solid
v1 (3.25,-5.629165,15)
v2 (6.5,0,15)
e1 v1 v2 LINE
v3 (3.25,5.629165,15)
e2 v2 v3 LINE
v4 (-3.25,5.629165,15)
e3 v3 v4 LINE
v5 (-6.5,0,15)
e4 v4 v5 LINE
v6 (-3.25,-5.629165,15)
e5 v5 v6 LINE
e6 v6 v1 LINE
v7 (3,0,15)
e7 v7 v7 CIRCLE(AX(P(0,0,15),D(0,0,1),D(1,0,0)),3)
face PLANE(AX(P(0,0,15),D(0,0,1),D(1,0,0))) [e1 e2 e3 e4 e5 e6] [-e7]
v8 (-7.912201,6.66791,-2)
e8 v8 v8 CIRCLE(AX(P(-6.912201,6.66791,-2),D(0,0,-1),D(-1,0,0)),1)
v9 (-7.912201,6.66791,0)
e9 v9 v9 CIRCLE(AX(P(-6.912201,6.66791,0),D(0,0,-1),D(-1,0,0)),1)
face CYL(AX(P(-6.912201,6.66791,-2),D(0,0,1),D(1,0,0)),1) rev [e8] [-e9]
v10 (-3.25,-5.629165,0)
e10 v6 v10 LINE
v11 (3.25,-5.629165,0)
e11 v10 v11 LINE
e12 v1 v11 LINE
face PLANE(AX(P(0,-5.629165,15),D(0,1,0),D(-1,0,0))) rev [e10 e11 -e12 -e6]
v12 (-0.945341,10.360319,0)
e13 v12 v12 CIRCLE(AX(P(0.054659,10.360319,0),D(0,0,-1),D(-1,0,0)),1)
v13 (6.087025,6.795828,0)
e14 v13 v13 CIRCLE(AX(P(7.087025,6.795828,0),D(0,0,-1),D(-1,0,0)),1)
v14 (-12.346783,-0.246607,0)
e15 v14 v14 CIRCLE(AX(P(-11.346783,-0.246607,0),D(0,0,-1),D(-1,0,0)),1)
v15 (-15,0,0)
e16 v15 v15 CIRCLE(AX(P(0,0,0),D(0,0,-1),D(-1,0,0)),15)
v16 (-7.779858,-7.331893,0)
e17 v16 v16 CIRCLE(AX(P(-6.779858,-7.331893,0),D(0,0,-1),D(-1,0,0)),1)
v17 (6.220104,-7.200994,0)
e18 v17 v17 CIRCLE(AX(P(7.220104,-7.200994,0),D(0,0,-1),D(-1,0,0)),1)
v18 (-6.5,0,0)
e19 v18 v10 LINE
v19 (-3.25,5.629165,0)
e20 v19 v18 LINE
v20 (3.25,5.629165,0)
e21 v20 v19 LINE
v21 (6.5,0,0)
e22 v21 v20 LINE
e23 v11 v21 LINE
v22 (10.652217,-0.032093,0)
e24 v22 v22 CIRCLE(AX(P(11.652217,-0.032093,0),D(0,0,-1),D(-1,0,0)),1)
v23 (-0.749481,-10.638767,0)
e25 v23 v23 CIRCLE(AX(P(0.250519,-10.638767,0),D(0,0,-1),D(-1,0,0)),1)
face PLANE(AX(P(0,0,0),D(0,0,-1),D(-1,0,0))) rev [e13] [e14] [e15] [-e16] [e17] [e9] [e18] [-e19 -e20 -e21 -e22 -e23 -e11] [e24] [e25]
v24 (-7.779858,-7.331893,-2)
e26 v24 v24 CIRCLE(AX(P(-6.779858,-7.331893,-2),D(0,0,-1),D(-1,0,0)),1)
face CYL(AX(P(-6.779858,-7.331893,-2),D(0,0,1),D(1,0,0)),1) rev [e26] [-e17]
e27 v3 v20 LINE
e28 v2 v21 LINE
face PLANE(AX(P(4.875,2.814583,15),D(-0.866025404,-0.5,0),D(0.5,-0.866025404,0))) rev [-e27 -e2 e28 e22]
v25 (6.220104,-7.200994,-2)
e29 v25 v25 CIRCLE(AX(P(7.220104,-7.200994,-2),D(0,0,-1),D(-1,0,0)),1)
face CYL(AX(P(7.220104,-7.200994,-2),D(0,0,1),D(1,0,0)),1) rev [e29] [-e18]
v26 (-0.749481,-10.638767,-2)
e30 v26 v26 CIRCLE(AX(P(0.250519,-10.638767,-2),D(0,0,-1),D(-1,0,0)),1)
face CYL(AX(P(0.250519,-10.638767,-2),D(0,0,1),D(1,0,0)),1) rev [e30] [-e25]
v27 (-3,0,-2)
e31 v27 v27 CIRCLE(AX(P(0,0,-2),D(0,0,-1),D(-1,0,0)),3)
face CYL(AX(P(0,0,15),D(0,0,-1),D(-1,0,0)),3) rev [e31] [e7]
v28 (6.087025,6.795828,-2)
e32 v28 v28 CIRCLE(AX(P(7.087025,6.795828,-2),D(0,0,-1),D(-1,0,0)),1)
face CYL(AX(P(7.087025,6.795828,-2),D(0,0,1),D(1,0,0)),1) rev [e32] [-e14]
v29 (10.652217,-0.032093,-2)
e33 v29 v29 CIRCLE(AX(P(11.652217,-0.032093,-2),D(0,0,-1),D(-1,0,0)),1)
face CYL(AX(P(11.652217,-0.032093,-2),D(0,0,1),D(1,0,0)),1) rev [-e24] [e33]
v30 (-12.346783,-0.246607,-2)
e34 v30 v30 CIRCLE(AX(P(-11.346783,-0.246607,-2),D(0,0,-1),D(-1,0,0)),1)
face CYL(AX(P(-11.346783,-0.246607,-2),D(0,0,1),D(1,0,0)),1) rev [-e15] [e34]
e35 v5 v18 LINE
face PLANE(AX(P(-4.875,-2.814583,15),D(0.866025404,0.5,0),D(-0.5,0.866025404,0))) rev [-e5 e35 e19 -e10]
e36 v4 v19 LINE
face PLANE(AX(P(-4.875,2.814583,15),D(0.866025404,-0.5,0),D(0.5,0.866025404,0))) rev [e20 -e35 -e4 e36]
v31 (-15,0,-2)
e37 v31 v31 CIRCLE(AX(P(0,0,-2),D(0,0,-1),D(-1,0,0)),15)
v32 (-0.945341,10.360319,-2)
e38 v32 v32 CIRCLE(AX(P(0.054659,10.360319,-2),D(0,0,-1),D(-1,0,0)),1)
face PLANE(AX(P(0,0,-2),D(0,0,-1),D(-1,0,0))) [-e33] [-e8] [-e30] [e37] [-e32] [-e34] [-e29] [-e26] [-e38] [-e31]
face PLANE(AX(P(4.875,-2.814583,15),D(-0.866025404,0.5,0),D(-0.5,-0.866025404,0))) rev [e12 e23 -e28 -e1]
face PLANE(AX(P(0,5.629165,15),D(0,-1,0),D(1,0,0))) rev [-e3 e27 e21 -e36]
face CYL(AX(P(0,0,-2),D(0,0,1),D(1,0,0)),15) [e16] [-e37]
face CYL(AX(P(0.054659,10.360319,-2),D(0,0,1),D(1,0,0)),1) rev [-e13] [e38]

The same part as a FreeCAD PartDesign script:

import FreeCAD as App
import Part
import Sketcher

V = App.Vector
Q = App.Units.Quantity

doc = App.newDocument("Part")
body = doc.addObject("PartDesign::Body", "Body")

sketch1 = body.newObject("Sketcher::SketchObject", "Sketch")
sketch1.AttachmentSupport = (doc.getObject("XY_Plane"), [""])
sketch1.MapMode = "FlatFace"
sketch1.addGeometry([
    Part.LineSegment(V(-3.2, -5.6, 0), V(3.2, -5.6, 0)),
    Part.LineSegment(V(3.2, -5.6, 0), V(6.5, 0, 0)),
    Part.LineSegment(V(6.5, 0, 0), V(3.2, 5.6, 0)),
    Part.LineSegment(V(3.2, 5.6, 0), V(-3.2, 5.6, 0)),
    Part.LineSegment(V(-3.2, 5.6, 0), V(-6.5, 0, 0)),
    Part.LineSegment(V(-6.5, 0, 0), V(-3.2, -5.6, 0)),
    Part.Circle(V(0, 0, 0), V(0, 0, 1), 3),
], False)
sketch1.addConstraint([
    Sketcher.Constraint("Coincident", 0, 2, 1, 1),
    Sketcher.Constraint("Coincident", 1, 2, 2, 1),
    Sketcher.Constraint("Coincident", 2, 2, 3, 1),
    Sketcher.Constraint("Coincident", 3, 2, 4, 1),
    Sketcher.Constraint("Coincident", 4, 2, 5, 1),
    Sketcher.Constraint("Coincident", 5, 2, 0, 1),
    Sketcher.Constraint("Horizontal", 0),
    Sketcher.Constraint("Horizontal", 3),
    Sketcher.Constraint("Coincident", 6, 3, -1, 1),
    Sketcher.Constraint("Symmetric", 0, 2, 3, 2, -1, 1),
    Sketcher.Constraint("Symmetric", 1, 2, 4, 2, -1, 1),
    Sketcher.Constraint("PointOnObject", 1, 2, -1),
    Sketcher.Constraint("Parallel", 2, 5),
    Sketcher.Constraint("Vertical", 0, 2, 2, 2),
    Sketcher.Constraint("Diameter", 6, 6.0),
    Sketcher.Constraint("Angle", 1, Q("60 deg")),
    Sketcher.Constraint("DistanceX", 0, 1, 0, 2, 6.5),
    Sketcher.Constraint("DistanceX", 4, 2, 1, 2, 13.0),
])
pad1 = body.newObject("PartDesign::Pad", "Pad")
pad1.Profile = sketch1
pad1.Length = 15

sketch2 = body.newObject("Sketcher::SketchObject", "Sketch001")
sketch2.AttachmentSupport = (doc.getObject("XY_Plane"), [""])
sketch2.MapMode = "FlatFace"
sketch2.AttachmentOffset = App.Placement(V(0, 0, -2), App.Rotation())
sketch2.addGeometry([
    Part.Circle(V(0, 0, 0), V(0, 0, 1), 15),
    Part.Circle(V(7.2, -7.2, 0), V(0, 0, 1), 1),
    Part.Circle(V(0.3, -10.6, 0), V(0, 0, 1), 1),
    Part.Circle(V(-6.8, -7.3, 0), V(0, 0, 1), 1),
    Part.Circle(V(-11.3, -0.2, 0), V(0, 0, 1), 1),
    Part.Circle(V(11.7, 0, 0), V(0, 0, 1), 1),
    Part.Circle(V(7.1, 6.8, 0), V(0, 0, 1), 1),
    Part.Circle(V(0, 0, 0), V(0, 0, 1), 3),
    Part.Circle(V(0.1, 10.4, 0), V(0, 0, 1), 1),
    Part.Circle(V(-6.9, 6.7, 0), V(0, 0, 1), 1),
], False)
sketch2.addConstraint([
    Sketcher.Constraint("Coincident", 0, 3, -1, 1),
    Sketcher.Constraint("Coincident", 7, 3, -1, 1),
    Sketcher.Constraint("Equal", 1, 2),
    Sketcher.Constraint("Equal", 2, 3),
    Sketcher.Constraint("Equal", 3, 4),
    Sketcher.Constraint("Equal", 4, 5),
    Sketcher.Constraint("Equal", 5, 6),
    Sketcher.Constraint("Equal", 6, 8),
    Sketcher.Constraint("Equal", 8, 9),
    Sketcher.Constraint("Diameter", 0, 30.0),
    Sketcher.Constraint("Diameter", 1, 2.0),
    Sketcher.Constraint("Diameter", 7, 6.0),
    Sketcher.Constraint("DistanceX", 4, 3, 5, 3, 22.999),
    Sketcher.Constraint("DistanceX", 9, 3, -1, 1, 6.912201),
    Sketcher.Constraint("DistanceY", 3, 3, 1, 3, 0.130899),
    Sketcher.Constraint("DistanceX", 4, 3, 2, 3, 11.597302),
    Sketcher.Constraint("DistanceY", 1, 3, 5, 3, 7.168901),
    Sketcher.Constraint("DistanceX", -1, 1, 2, 3, 0.250519),
    Sketcher.Constraint("DistanceY", -1, 1, 6, 3, 6.795828),
    Sketcher.Constraint("DistanceX", -1, 1, 8, 3, 0.054659),
    Sketcher.Constraint("DistanceY", -1, 1, 8, 3, 10.360319),
    Sketcher.Constraint("DistanceY", -1, 1, 9, 3, 6.66791),
    Sketcher.Constraint("DistanceY", 2, 3, 4, 3, 10.392161),
    Sketcher.Constraint("DistanceY", 5, 3, 6, 3, 6.827921),
    Sketcher.Constraint("DistanceX", 6, 3, 1, 3, 0.13308),
    Sketcher.Constraint("DistanceX", -1, 1, 1, 3, 7.220104),
    Sketcher.Constraint("DistanceY", 2, 3, -1, 1, 10.638767),
    Sketcher.Constraint("DistanceX", 3, 3, -1, 1, 6.779858),
])
pad2 = body.newObject("PartDesign::Pad", "Pad001")
pad2.Profile = sketch2
pad2.Length = 2

doc.recompute()
